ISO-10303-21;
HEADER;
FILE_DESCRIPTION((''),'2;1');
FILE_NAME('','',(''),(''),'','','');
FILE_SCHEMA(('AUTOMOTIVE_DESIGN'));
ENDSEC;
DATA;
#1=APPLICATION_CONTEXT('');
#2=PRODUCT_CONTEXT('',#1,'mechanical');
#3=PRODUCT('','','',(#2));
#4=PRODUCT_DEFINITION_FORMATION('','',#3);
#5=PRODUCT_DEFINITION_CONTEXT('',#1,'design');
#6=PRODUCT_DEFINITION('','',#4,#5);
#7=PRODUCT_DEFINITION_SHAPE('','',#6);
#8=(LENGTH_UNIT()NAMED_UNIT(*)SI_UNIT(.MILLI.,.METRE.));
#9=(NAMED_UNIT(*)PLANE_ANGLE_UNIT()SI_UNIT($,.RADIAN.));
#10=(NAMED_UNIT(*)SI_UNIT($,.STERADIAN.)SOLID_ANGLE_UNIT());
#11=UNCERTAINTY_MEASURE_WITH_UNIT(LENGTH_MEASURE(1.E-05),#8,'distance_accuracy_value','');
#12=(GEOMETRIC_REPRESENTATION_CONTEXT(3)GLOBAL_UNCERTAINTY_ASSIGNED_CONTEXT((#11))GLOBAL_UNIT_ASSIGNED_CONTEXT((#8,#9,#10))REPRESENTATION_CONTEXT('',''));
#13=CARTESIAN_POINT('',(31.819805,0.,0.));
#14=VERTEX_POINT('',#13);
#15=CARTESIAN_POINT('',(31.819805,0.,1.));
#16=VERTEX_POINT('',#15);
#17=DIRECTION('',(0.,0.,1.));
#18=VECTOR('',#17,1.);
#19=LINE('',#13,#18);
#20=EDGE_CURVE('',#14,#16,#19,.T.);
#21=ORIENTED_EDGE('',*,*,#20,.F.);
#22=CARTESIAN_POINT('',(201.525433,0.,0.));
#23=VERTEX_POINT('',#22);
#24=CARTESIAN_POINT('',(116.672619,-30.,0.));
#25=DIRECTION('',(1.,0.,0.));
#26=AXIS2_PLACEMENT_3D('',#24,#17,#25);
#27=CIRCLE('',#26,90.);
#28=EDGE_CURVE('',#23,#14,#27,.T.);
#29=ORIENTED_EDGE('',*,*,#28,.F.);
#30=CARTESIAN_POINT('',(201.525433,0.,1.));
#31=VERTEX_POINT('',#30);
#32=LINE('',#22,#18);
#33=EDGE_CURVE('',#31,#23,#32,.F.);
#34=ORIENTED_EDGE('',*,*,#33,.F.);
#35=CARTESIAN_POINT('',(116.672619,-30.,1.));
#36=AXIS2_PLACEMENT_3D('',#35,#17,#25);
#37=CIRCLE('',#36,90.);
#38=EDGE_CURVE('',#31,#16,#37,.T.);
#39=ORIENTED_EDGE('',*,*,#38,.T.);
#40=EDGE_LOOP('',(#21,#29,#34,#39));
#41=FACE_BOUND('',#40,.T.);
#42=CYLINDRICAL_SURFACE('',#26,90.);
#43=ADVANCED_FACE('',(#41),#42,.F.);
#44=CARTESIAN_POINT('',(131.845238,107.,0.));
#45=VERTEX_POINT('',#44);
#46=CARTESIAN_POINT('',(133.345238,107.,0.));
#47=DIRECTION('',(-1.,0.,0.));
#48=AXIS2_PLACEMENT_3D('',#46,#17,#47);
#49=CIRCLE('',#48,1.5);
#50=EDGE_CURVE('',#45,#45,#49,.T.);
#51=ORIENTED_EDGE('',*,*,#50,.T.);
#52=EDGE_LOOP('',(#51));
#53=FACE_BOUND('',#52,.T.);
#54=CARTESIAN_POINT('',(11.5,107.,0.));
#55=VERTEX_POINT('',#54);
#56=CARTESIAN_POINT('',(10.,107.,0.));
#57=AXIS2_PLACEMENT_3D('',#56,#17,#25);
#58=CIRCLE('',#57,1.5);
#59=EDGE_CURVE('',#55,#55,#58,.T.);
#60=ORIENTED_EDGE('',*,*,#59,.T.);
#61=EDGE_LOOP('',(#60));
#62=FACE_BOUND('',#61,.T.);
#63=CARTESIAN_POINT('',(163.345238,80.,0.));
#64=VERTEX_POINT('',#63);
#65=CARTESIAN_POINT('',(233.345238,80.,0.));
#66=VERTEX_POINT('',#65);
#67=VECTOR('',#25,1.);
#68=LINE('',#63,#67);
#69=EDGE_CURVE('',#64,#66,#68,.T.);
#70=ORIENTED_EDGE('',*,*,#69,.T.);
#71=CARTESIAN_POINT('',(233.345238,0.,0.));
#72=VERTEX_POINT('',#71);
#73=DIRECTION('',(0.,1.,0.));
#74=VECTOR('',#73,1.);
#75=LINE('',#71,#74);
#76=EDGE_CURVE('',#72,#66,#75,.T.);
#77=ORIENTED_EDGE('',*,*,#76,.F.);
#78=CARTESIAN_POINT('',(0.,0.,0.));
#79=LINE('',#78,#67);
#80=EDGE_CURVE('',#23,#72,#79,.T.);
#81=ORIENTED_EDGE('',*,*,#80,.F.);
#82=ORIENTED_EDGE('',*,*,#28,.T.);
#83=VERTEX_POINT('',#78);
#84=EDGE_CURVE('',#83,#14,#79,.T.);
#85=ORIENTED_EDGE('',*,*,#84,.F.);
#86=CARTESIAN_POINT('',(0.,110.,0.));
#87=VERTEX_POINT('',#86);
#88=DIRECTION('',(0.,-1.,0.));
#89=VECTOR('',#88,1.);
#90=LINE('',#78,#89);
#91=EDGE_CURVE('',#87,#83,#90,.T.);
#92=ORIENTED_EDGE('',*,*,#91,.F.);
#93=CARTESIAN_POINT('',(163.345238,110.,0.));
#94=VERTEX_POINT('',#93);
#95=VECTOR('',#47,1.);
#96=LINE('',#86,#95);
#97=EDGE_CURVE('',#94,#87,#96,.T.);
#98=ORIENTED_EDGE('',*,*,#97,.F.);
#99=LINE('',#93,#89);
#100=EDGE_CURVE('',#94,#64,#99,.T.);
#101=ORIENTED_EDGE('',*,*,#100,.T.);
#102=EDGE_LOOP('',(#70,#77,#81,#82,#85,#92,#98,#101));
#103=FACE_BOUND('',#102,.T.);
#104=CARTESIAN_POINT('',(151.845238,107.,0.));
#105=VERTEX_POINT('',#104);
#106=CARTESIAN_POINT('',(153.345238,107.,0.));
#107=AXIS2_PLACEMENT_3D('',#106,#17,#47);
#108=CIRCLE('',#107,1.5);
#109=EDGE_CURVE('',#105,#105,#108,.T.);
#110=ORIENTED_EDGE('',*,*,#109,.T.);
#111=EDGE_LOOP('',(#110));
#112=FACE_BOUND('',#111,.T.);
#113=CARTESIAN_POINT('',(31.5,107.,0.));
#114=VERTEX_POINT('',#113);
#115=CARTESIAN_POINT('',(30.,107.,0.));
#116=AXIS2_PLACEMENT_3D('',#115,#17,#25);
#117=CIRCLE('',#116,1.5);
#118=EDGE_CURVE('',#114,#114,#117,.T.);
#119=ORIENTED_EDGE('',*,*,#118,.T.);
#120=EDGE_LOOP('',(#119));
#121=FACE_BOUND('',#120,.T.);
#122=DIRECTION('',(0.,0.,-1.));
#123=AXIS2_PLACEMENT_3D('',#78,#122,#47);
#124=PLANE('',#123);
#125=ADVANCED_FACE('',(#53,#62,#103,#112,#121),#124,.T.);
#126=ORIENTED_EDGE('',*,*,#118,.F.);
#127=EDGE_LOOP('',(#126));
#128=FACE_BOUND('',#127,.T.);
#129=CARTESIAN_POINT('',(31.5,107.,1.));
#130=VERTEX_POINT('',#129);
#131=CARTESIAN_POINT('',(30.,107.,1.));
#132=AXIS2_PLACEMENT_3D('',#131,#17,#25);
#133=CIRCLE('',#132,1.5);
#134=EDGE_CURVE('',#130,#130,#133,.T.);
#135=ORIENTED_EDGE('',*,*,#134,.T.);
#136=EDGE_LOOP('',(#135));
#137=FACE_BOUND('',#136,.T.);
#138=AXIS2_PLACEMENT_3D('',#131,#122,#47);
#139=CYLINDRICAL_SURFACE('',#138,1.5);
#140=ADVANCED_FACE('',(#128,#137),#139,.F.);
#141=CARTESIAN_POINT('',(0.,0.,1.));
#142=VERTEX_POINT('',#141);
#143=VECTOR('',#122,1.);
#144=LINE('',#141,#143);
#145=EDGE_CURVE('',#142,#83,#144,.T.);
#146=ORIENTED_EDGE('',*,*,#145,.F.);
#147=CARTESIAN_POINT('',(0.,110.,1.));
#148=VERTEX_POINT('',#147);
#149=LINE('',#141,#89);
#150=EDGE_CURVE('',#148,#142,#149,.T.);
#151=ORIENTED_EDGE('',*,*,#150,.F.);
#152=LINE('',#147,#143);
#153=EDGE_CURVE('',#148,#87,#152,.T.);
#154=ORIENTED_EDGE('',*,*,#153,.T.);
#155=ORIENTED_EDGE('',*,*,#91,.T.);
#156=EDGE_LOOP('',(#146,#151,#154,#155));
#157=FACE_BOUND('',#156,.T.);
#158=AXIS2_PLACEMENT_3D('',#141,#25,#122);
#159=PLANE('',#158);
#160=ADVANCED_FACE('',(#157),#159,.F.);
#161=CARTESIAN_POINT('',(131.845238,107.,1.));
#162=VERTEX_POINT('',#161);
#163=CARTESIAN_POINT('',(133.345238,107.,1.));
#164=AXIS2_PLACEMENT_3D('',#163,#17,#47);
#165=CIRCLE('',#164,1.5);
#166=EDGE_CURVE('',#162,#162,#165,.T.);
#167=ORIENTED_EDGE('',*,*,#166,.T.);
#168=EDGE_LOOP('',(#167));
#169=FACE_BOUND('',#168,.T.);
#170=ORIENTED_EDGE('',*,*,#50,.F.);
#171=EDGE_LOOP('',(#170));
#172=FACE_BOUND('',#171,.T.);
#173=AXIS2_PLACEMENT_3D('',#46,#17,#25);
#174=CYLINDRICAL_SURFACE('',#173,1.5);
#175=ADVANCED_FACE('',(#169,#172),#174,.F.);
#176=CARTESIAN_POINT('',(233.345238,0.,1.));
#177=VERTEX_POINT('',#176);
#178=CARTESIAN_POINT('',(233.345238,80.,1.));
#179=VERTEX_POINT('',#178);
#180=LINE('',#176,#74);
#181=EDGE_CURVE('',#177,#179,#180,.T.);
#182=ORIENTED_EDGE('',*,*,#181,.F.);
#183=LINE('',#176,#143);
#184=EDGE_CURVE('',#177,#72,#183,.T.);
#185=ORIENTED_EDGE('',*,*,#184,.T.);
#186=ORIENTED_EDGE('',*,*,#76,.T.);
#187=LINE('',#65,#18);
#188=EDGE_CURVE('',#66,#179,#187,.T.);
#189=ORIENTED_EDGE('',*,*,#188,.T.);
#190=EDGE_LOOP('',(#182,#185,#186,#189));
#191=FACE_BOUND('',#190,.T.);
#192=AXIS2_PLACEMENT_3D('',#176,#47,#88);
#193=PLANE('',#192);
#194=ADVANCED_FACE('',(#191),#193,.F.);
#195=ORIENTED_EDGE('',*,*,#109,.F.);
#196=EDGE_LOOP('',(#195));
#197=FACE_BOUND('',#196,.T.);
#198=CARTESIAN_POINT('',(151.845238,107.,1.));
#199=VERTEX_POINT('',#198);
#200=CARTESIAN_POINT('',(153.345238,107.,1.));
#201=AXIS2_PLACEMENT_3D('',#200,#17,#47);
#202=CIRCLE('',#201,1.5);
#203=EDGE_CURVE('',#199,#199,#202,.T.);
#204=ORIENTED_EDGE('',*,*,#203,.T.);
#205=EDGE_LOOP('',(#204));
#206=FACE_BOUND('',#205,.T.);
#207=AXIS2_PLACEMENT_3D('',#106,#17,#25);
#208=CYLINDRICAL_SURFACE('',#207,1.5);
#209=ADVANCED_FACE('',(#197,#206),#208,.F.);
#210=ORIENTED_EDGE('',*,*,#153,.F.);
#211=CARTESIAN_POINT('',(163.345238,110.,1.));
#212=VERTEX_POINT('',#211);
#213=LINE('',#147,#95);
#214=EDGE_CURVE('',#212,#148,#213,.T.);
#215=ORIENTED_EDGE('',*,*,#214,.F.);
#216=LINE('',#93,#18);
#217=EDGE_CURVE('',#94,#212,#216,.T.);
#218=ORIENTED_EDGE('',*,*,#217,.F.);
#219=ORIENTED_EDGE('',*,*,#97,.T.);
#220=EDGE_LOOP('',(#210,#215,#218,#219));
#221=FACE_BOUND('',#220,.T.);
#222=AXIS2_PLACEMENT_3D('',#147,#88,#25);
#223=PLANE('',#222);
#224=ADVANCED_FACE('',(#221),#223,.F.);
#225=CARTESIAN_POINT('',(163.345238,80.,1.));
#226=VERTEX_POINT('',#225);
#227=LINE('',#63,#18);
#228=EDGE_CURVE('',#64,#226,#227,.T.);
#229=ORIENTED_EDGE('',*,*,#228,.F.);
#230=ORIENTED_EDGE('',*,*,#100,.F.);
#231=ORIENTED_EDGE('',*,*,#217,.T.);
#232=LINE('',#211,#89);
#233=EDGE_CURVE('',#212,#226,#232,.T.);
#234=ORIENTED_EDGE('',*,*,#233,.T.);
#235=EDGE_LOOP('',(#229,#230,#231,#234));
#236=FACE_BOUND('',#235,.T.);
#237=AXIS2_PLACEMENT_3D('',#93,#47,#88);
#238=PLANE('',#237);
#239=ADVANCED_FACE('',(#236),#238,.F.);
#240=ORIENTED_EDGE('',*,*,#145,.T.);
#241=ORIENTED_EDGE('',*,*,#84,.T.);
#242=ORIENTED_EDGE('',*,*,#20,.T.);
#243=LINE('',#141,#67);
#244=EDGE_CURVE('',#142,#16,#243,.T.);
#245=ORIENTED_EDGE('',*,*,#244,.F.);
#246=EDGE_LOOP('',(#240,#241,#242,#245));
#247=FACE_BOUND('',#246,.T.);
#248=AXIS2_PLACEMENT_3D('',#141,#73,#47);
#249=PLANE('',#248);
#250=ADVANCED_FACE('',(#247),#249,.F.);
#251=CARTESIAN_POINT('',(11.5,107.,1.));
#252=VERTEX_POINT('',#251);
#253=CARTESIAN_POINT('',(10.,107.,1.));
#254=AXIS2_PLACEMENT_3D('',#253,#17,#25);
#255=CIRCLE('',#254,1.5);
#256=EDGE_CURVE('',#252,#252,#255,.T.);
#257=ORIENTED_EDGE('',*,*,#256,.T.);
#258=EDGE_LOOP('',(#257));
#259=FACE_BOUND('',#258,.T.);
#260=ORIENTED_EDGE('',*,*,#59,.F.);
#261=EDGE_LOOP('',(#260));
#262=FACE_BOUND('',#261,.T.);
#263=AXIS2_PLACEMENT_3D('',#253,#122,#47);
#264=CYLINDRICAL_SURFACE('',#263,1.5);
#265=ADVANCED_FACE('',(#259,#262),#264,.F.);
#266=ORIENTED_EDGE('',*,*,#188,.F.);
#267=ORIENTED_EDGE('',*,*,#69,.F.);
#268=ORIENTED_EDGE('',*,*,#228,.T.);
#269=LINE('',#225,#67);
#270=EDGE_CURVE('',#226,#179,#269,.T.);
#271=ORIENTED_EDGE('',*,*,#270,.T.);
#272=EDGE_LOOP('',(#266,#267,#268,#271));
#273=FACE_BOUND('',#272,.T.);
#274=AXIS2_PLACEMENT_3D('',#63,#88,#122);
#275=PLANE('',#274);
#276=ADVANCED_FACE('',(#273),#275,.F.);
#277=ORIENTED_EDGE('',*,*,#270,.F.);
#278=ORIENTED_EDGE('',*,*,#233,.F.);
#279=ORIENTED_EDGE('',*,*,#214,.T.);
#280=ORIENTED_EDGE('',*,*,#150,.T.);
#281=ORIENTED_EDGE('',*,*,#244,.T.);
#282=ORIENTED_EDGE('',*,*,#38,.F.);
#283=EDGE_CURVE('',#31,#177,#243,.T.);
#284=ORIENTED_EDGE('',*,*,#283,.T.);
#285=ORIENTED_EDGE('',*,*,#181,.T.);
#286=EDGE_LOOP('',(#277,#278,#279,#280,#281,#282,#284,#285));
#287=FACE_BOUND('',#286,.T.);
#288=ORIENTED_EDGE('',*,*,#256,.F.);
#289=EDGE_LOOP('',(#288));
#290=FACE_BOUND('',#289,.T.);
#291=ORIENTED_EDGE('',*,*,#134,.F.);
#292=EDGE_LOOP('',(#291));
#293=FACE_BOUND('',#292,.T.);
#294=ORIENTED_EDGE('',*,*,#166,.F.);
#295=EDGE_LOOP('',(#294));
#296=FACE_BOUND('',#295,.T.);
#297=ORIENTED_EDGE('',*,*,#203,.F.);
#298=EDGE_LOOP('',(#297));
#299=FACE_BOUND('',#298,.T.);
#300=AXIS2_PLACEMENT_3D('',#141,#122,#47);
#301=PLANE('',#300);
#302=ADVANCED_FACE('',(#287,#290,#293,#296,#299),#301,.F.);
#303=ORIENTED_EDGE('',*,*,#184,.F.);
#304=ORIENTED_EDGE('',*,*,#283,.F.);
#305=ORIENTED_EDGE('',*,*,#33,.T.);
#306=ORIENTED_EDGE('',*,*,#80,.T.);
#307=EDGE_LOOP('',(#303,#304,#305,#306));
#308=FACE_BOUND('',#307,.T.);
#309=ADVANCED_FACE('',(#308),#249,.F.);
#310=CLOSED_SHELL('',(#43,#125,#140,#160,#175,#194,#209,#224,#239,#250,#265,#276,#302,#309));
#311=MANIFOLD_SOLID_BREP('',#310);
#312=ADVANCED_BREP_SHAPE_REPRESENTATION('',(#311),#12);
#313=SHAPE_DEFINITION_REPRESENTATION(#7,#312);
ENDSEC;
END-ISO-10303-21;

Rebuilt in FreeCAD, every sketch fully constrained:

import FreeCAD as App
import Part
import Sketcher
Q = App.Units.Quantity


def add_polygon(sketch, points):
    """Adds a closed chain of lines whose ends are joined by coincident constraints."""
    first, n = sketch.GeometryCount, len(points)
    for a, b in zip(points, points[1:] + points[:1]):
        sketch.addGeometry(Part.LineSegment(App.Vector(*a, 0), App.Vector(*b, 0)), False)
    for i in range(n):
        sketch.addConstraint(Sketcher.Constraint("Coincident", first + i, 2, first + (i + 1) % n, 1))

doc = App.newDocument("Part")
body = doc.addObject("PartDesign::Body", "Body")

# Sketch on XY plane
sketch1 = body.newObject("Sketcher::SketchObject", "Sketch")
sketch1.AttachmentSupport = (doc.getObject("XY_Plane"), [""])
sketch1.MapMode = "FlatFace"
add_polygon(sketch1, [(0, 110), (0, 0), (233.3, 0), (233.3, 110)])  # lines 0-3
sketch1.addGeometry(Part.Circle(App.Vector(10, 107, 0), App.Vector(0, 0, 1), 1.5), False)  # 4
sketch1.addGeometry(Part.Circle(App.Vector(30, 107, 0), App.Vector(0, 0, 1), 1.5), False)  # 5
sketch1.addGeometry(Part.Circle(App.Vector(203.3, 107, 0), App.Vector(0, 0, 1), 1.5), False)  # 6
sketch1.addGeometry(Part.Circle(App.Vector(223.3, 107, 0), App.Vector(0, 0, 1), 1.5), False)  # 7
sketch1.addConstraint(Sketcher.Constraint("Vertical", 0))
sketch1.addConstraint(Sketcher.Constraint("Horizontal", 1))
sketch1.addConstraint(Sketcher.Constraint("Vertical", 2))
sketch1.addConstraint(Sketcher.Constraint("Horizontal", 3))
sketch1.addConstraint(Sketcher.Constraint("Coincident", 0, 2, -1, 1))
sketch1.addConstraint(Sketcher.Constraint("Equal", 4, 5))
sketch1.addConstraint(Sketcher.Constraint("Equal", 5, 6))
sketch1.addConstraint(Sketcher.Constraint("Equal", 6, 7))
sketch1.addConstraint(Sketcher.Constraint("Horizontal", 4, 3, 5, 3))
sketch1.addConstraint(Sketcher.Constraint("Horizontal", 5, 3, 6, 3))
sketch1.addConstraint(Sketcher.Constraint("Horizontal", 6, 3, 7, 3))
sketch1.addConstraint(Sketcher.Constraint("Diameter", 4, Q("3 mm")))
sketch1.addConstraint(Sketcher.Constraint("DistanceY", 0, 2, 0, 1, Q("110 mm")))
sketch1.addConstraint(Sketcher.Constraint("DistanceX", -1, 1, 4, 3, Q("10 mm")))
sketch1.addConstraint(Sketcher.Constraint("DistanceY", -1, 1, 4, 3, Q("107 mm")))
sketch1.addConstraint(Sketcher.Constraint("DistanceX", -1, 1, 5, 3, Q("30 mm")))
sketch1.addConstraint(Sketcher.Constraint("DistanceX", 6, 3, 7, 3, Q("20 mm")))
sketch1.addConstraint(Sketcher.Constraint("DistanceX", 7, 3, 1, 2, Q("10 mm")))
sketch1.addConstraint(Sketcher.Constraint("DistanceX", 1, 1, 1, 2, Q("233.345238 mm")))
pad1 = body.newObject("PartDesign::Pad", "Pad")
pad1.Profile = sketch1
pad1.Length = 1

# Sketch on XY plane
sketch2 = body.newObject("Sketcher::SketchObject", "Sketch001")
sketch2.AttachmentSupport = (doc.getObject("XY_Plane"), [""])
sketch2.MapMode = "FlatFace"
sketch2.AttachmentOffset = App.Placement(App.Vector(0, 0, 1), App.Rotation())
add_polygon(sketch2, [(163, 110), (163, 80), (233, 80), (233, 110)])  # lines 0-3
sketch2.addConstraint(Sketcher.Constraint("Vertical", 0))
sketch2.addConstraint(Sketcher.Constraint("Horizontal", 1))
sketch2.addConstraint(Sketcher.Constraint("Vertical", 2))
sketch2.addConstraint(Sketcher.Constraint("Horizontal", 3))
sketch2.addConstraint(Sketcher.Constraint("DistanceX", 1, 1, 1, 2, Q("70 mm")))
sketch2.addConstraint(Sketcher.Constraint("DistanceY", 0, 2, 0, 1, Q("30 mm")))
sketch2.addConstraint(Sketcher.Constraint("DistanceY", -1, 1, 0, 2, Q("80 mm")))
sketch2.addConstraint(Sketcher.Constraint("DistanceX", -1, 1, 0, 2, Q("163.345238 mm")))
pocket1 = body.newObject("PartDesign::Pocket", "Pocket")
pocket1.Profile = sketch2
pocket1.Type = "ThroughAll"

# Sketch on XY plane
sketch3 = body.newObject("Sketcher::SketchObject", "Sketch002")
sketch3.AttachmentSupport = (doc.getObject("XY_Plane"), [""])
sketch3.MapMode = "FlatFace"
sketch3.AttachmentOffset = App.Placement(App.Vector(0, 0, 1), App.Rotation())
sketch3.addGeometry(Part.Circle(App.Vector(10, 107, 0), App.Vector(0, 0, 1), 1.5), False)
sketch3.addGeometry(Part.Circle(App.Vector(30, 107, 0), App.Vector(0, 0, 1), 1.5), False)
sketch3.addGeometry(Part.Circle(App.Vector(133.3, 107, 0), App.Vector(0, 0, 1), 1.5), False)
sketch3.addGeometry(Part.Circle(App.Vector(153.3, 107, 0), App.Vector(0, 0, 1), 1.5), False)
sketch3.addConstraint(Sketcher.Constraint("Equal", 0, 1))
sketch3.addConstraint(Sketcher.Constraint("Equal", 1, 2))
sketch3.addConstraint(Sketcher.Constraint("Equal", 2, 3))
sketch3.addConstraint(Sketcher.Constraint("Horizontal", 0, 3, 1, 3))
sketch3.addConstraint(Sketcher.Constraint("Horizontal", 1, 3, 2, 3))
sketch3.addConstraint(Sketcher.Constraint("Horizontal", 2, 3, 3, 3))
sketch3.addConstraint(Sketcher.Constraint("Diameter", 0, Q("3 mm")))
sketch3.addConstraint(Sketcher.Constraint("DistanceX", -1, 1, 0, 3, Q("10 mm")))
sketch3.addConstraint(Sketcher.Constraint("DistanceY", -1, 1, 0, 3, Q("107 mm")))
sketch3.addConstraint(Sketcher.Constraint("DistanceX", -1, 1, 1, 3, Q("30 mm")))
sketch3.addConstraint(Sketcher.Constraint("DistanceX", 2, 3, 3, 3, Q("20 mm")))
sketch3.addConstraint(Sketcher.Constraint("DistanceX", -1, 1, 2, 3, Q("133.345238 mm")))
pocket2 = body.newObject("PartDesign::Pocket", "Pocket001")
pocket2.Profile = sketch3
pocket2.Type = "ThroughAll"

# Sketch on XY plane
sketch4 = body.newObject("Sketcher::SketchObject", "Sketch003")
sketch4.AttachmentSupport = (doc.getObject("XY_Plane"), [""])
sketch4.MapMode = "FlatFace"
sketch4.AttachmentOffset = App.Placement(App.Vector(0, 0, 1), App.Rotation())
sketch4.addGeometry(Part.Circle(App.Vector(117, -30, 0), App.Vector(0, 0, 1), 90), False)
sketch4.addConstraint(Sketcher.Constraint("Diameter", 0, Q("180 mm")))
sketch4.addConstraint(Sketcher.Constraint("DistanceY", 0, 3, -1, 1, Q("30 mm")))
sketch4.addConstraint(Sketcher.Constraint("DistanceX", -1, 1, 0, 3, Q("116.672619 mm")))
pocket3 = body.newObject("PartDesign::Pocket", "Pocket002")
pocket3.Profile = sketch4
pocket3.Type = "ThroughAll"

doc.recompute()
